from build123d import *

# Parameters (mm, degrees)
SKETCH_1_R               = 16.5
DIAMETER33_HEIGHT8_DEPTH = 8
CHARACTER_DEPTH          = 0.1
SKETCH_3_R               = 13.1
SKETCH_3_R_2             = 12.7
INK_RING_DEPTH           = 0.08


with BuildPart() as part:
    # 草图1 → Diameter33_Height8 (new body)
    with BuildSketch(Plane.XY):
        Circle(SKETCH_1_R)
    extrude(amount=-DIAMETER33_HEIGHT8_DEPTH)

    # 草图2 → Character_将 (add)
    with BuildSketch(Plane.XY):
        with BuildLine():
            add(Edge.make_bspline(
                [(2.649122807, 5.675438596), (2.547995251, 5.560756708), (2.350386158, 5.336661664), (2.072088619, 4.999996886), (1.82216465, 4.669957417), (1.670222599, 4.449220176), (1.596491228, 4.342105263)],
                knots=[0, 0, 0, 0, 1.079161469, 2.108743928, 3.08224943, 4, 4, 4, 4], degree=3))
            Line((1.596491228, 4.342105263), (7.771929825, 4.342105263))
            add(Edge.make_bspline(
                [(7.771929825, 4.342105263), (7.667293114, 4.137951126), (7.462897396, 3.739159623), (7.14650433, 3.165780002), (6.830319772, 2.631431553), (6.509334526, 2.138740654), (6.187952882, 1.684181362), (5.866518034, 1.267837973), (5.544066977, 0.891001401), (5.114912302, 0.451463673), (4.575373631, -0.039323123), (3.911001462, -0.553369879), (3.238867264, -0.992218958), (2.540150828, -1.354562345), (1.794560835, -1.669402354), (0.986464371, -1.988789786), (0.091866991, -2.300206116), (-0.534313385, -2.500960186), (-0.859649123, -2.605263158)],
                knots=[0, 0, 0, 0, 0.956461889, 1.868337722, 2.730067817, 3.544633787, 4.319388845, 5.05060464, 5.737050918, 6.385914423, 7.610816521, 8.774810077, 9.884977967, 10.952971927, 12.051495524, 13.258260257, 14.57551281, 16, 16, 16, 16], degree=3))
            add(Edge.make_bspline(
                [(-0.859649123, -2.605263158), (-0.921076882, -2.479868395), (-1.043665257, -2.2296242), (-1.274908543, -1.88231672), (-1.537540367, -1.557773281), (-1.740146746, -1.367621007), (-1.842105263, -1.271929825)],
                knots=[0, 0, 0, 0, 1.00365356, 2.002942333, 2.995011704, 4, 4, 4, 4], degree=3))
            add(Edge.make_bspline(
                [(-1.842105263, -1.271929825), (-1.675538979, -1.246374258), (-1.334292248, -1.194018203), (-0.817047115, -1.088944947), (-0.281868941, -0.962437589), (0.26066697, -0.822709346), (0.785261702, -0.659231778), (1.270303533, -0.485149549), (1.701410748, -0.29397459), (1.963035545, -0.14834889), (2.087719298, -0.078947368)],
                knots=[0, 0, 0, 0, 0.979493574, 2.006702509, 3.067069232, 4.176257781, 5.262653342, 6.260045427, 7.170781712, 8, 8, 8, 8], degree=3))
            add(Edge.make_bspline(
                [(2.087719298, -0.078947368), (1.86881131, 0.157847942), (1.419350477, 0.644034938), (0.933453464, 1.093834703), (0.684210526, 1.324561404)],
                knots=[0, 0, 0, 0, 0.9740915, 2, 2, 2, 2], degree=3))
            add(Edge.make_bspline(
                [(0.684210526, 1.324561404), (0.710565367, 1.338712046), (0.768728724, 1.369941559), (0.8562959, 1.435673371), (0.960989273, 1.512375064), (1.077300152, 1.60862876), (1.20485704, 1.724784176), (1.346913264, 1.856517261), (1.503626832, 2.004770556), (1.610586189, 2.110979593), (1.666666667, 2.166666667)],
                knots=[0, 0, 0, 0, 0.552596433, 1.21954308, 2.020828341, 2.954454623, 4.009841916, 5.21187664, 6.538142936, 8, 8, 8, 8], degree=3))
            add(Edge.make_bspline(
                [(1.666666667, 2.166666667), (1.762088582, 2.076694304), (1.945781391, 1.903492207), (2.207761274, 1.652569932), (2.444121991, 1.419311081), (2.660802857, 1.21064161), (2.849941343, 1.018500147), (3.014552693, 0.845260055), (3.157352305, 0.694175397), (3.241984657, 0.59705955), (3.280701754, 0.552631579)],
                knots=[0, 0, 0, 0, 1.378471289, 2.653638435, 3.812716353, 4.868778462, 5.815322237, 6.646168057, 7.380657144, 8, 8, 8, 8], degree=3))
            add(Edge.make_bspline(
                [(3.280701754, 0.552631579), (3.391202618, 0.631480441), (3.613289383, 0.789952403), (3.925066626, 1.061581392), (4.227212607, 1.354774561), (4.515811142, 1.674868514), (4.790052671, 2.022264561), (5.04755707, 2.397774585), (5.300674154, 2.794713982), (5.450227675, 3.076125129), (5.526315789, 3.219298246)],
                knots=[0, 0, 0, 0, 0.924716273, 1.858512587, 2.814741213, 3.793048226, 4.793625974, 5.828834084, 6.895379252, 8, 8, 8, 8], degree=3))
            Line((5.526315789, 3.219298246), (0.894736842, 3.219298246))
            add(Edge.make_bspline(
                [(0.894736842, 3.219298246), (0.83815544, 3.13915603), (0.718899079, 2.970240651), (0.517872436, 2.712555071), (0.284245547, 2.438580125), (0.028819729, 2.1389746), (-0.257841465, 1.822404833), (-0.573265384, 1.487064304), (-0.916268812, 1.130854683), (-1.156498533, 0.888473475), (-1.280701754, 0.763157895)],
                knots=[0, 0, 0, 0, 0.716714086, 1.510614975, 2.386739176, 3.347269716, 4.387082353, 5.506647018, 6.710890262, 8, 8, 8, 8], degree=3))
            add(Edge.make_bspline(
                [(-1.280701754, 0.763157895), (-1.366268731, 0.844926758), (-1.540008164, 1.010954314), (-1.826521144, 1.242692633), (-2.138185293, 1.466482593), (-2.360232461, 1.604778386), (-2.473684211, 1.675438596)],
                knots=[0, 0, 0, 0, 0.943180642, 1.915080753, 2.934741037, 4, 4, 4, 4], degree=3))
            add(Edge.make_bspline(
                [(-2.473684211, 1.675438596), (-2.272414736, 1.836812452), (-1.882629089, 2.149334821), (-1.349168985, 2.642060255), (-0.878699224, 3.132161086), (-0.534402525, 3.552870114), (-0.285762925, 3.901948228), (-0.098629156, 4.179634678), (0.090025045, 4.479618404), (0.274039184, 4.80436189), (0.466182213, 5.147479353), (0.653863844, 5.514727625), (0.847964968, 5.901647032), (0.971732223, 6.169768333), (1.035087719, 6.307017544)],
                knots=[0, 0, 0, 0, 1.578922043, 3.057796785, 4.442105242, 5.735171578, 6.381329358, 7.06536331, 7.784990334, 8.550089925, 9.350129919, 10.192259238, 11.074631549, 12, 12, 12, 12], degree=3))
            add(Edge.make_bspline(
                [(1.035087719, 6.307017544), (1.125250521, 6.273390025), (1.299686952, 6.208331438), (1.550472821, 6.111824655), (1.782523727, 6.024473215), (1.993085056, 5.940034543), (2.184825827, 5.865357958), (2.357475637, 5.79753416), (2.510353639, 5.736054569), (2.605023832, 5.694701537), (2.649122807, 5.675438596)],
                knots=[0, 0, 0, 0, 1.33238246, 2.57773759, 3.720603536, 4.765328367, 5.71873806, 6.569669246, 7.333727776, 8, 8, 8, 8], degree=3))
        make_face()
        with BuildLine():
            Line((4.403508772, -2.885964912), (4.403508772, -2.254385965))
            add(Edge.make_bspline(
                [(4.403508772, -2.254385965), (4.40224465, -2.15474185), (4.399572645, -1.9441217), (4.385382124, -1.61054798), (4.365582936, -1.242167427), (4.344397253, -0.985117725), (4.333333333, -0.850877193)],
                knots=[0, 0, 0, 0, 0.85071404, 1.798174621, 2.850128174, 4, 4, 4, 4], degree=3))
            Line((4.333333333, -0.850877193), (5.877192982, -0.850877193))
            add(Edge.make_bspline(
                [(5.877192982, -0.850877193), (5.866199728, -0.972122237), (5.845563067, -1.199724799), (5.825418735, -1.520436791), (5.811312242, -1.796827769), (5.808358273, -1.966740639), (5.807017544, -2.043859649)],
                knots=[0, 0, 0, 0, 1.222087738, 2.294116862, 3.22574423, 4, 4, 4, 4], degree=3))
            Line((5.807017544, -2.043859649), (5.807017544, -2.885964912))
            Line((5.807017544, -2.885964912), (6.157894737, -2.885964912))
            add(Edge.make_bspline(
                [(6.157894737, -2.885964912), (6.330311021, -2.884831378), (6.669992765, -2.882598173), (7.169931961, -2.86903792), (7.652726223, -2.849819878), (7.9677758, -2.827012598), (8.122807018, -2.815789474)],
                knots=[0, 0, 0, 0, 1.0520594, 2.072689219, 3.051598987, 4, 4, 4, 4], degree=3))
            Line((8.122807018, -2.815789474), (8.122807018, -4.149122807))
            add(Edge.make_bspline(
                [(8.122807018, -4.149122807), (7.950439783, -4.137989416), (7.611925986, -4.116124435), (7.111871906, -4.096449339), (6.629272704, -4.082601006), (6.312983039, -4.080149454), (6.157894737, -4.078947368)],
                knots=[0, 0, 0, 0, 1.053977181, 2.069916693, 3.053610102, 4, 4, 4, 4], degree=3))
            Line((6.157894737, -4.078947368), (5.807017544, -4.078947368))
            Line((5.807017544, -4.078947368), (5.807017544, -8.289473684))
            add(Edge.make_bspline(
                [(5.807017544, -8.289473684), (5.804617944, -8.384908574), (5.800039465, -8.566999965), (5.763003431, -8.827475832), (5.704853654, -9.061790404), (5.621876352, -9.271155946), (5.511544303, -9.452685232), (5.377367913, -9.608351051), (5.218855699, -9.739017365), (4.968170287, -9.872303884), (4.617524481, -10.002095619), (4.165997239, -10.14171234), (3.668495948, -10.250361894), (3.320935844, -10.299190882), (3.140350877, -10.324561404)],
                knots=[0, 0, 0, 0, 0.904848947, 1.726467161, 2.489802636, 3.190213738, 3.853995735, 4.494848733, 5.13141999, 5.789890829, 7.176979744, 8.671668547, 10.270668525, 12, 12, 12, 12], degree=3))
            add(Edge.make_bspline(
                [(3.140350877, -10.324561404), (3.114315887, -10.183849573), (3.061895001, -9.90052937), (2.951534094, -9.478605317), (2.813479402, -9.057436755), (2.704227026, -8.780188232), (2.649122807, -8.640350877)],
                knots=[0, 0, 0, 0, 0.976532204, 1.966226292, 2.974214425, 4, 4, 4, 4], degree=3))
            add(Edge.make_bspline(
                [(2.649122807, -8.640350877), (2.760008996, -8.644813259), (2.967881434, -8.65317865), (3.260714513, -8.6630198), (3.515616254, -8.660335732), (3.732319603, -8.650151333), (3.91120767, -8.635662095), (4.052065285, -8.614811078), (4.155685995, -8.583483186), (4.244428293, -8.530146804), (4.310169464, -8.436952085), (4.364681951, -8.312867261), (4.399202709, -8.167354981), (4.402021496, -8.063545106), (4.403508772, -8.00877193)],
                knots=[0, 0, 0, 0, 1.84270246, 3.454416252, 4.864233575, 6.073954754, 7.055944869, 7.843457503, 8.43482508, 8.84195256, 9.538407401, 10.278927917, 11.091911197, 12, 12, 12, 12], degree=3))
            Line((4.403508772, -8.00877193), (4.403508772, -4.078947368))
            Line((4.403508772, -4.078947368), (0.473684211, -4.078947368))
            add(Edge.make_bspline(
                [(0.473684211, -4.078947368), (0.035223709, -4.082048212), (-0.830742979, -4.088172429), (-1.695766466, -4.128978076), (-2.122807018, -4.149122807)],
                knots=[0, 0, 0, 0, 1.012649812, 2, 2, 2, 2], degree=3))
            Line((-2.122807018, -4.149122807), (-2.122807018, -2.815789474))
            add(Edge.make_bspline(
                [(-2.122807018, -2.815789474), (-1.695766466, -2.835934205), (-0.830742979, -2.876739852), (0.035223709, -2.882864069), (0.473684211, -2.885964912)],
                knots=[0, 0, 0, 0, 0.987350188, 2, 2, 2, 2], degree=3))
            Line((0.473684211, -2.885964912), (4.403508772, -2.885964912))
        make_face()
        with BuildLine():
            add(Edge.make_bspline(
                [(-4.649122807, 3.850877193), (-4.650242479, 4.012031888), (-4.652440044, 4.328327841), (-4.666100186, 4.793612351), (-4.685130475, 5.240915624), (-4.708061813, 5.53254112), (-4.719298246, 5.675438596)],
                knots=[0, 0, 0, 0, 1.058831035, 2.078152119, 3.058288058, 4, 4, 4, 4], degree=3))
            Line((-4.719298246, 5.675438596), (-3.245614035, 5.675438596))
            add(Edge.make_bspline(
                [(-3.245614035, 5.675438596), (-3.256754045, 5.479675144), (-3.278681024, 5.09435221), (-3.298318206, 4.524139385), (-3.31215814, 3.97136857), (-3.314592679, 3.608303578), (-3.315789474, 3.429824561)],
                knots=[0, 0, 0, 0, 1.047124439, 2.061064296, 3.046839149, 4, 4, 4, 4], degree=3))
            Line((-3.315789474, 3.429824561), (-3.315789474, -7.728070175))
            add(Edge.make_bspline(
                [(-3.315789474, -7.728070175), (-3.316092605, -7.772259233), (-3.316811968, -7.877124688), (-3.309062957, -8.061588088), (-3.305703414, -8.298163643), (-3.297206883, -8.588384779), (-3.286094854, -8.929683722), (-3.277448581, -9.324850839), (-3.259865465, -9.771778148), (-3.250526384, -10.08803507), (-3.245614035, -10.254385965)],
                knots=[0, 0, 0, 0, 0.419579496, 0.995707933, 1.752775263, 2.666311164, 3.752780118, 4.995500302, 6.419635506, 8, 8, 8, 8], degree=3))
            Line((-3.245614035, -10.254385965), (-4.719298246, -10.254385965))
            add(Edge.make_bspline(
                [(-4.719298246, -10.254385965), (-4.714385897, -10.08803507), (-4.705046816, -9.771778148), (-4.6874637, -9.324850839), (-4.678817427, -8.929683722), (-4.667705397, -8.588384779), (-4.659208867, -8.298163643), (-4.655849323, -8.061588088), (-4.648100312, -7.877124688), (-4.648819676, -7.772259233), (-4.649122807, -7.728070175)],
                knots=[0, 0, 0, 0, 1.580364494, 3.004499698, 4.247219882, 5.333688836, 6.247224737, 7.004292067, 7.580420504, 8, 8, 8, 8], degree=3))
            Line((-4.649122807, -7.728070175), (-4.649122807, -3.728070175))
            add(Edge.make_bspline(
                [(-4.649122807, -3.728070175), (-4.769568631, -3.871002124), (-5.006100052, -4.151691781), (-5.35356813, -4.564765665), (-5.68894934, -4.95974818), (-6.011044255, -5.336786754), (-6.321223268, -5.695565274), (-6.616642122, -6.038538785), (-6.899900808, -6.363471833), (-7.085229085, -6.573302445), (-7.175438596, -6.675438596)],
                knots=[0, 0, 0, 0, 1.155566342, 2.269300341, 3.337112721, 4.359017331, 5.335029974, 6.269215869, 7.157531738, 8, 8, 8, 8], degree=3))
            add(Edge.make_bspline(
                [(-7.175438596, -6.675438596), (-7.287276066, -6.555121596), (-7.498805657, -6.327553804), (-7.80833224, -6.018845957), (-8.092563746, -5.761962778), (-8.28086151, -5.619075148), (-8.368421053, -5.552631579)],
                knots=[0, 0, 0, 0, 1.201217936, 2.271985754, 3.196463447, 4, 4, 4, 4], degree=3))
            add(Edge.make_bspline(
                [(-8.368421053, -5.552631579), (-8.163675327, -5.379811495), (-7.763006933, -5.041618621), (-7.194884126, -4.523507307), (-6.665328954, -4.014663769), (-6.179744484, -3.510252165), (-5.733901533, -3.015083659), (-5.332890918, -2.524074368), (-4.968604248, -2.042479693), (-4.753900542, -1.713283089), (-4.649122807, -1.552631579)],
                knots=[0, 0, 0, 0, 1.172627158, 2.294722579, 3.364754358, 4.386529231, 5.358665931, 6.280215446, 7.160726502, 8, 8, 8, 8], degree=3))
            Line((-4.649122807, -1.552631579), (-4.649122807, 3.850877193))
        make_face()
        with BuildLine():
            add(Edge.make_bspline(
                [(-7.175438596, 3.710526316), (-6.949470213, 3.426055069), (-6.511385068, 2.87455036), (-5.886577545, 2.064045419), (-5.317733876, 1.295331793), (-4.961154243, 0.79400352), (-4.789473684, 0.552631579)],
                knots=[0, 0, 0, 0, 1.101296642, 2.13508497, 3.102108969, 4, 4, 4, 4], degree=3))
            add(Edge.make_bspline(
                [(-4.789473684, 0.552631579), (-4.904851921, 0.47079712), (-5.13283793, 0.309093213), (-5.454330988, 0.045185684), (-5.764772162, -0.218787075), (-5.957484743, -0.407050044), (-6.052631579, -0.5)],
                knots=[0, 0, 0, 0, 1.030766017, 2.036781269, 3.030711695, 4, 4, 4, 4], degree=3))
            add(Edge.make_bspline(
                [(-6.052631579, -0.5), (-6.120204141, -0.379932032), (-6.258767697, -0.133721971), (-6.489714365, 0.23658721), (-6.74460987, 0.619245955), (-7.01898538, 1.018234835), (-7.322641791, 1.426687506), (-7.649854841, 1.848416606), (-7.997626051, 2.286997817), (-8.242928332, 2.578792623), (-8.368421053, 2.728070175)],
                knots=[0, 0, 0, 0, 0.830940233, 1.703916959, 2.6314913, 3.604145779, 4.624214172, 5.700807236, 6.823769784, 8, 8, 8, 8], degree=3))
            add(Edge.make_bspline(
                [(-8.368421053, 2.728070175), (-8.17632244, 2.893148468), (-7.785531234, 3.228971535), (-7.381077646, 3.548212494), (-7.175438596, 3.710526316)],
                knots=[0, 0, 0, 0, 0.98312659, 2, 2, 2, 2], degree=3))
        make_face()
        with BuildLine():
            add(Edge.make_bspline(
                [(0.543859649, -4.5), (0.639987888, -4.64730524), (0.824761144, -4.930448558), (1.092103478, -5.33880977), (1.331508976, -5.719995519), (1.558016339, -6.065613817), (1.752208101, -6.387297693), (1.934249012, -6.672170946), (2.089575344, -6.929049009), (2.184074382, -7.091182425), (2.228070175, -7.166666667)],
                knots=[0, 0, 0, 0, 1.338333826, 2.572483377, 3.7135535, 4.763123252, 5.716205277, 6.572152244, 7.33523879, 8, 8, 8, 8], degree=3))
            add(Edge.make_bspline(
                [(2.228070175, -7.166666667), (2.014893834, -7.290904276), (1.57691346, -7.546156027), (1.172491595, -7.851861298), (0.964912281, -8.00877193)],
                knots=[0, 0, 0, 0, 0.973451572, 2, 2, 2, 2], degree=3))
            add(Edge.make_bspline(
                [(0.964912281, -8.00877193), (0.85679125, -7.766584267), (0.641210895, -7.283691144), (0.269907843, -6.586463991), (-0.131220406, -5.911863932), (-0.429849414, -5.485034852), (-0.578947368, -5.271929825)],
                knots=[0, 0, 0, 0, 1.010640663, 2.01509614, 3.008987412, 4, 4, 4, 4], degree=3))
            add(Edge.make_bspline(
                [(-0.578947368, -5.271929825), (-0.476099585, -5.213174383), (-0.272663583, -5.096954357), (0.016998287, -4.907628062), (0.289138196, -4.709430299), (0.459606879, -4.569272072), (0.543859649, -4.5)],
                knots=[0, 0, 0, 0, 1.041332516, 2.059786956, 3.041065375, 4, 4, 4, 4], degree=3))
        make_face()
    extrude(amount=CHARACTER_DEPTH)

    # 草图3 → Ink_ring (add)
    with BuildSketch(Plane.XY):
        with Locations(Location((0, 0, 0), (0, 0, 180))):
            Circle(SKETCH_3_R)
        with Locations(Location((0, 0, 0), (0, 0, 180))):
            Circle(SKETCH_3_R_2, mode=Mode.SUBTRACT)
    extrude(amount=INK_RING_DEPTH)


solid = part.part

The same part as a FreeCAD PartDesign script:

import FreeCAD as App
import Part
import Sketcher
Q = App.Units.Quantity

doc = App.newDocument("Part")
body = doc.addObject("PartDesign::Body", "Body")

# Sketch on XY plane
sketch1 = body.newObject("Sketcher::SketchObject", "Sketch")
sketch1.AttachmentSupport = (doc.getObject("XY_Plane"), [""])
sketch1.MapMode = "FlatFace"
sketch1.addGeometry(Part.Circle(App.Vector(0, 0, 0), App.Vector(0, 0, 1), 16), False)
sketch1.addConstraint(Sketcher.Constraint("Coincident", 0, 3, -1, 1))
sketch1.addConstraint(Sketcher.Constraint("Diameter", 0, Q("33 mm")))
pad1 = body.newObject("PartDesign::Pad", "Pad")
pad1.Profile = sketch1
pad1.Length = 8
pad1.Reversed = True

# Sketch on XY plane
sketch2 = body.newObject("Sketcher::SketchObject", "Sketch001")
sketch2.AttachmentSupport = (doc.getObject("XY_Plane"), [""])
sketch2.MapMode = "FlatFace"
sketch2.addGeometry(Part.BSplineCurve([App.Vector(2.649123, 5.675439, 0), App.Vector(2.547995, 5.560757, 0), App.Vector(2.350386, 5.336662, 0), App.Vector(2.072089, 4.999997, 0), App.Vector(1.822165, 4.669957, 0), App.Vector(1.670223, 4.44922, 0), App.Vector(1.596491, 4.342105, 0)], [4, 1, 1, 1, 4], [0, 1.079161469, 2.108743928, 3.08224943, 4], False, 3, [1, 1, 1, 1, 1, 1, 1], False), False)
sketch2.addGeometry(Part.BSplineCurve([App.Vector(1.035088, 6.307018, 0), App.Vector(1.125251, 6.27339, 0), App.Vector(1.299687, 6.208331, 0), App.Vector(1.550473, 6.111825, 0), App.Vector(1.782524, 6.024473, 0), App.Vector(1.993085, 5.940035, 0), App.Vector(2.184826, 5.865358, 0), App.Vector(2.357476, 5.797534, 0), App.Vector(2.510354, 5.736055, 0), App.Vector(2.605024, 5.694702, 0), App.Vector(2.649123, 5.675439, 0)], [4, 1, 1, 1, 1, 1, 1, 1, 4], [0, 1.33238246, 2.57773759, 3.720603536, 4.765328367, 5.71873806, 6.569669246, 7.333727776, 8], False, 3, [1, 1, 1, 1, 1, 1, 1, 1, 1, 1, 1], False), False)
sketch2.addGeometry(Part.BSplineCurve([App.Vector(-2.473684, 1.675439, 0), App.Vector(-2.272415, 1.836812, 0), App.Vector(-1.882629, 2.149335, 0), App.Vector(-1.349169, 2.64206, 0), App.Vector(-0.878699, 3.132161, 0), App.Vector(-0.534403, 3.55287, 0), App.Vector(-0.285763, 3.901948, 0), App.Vector(-0.098629, 4.179635, 0), App.Vector(0.090025, 4.479618, 0), App.Vector(0.274039, 4.804362, 0), App.Vector(0.466182, 5.147479, 0), App.Vector(0.653864, 5.514728, 0), App.Vector(0.847965, 5.901647, 0), App.Vector(0.971732, 6.169768, 0), App.Vector(1.035088, 6.307018, 0)], [4, 1, 1, 1, 1, 1, 1, 1, 1, 1, 1, 1, 4], [0, 1.578922043, 3.057796785, 4.442105242, 5.735171578, 6.381329358, 7.06536331, 7.784990334, 8.550089925, 9.350129919, 10.192259238, 11.074631549, 12], False, 3, [1, 1, 1, 1, 1, 1, 1, 1, 1, 1, 1, 1, 1, 1, 1], False), False)
sketch2.addGeometry(Part.BSplineCurve([App.Vector(-1.280702, 0.763158, 0), App.Vector(-1.366269, 0.844927, 0), App.Vector(-1.540008, 1.010954, 0), App.Vector(-1.826521, 1.242693, 0), App.Vector(-2.138185, 1.466483, 0), App.Vector(-2.360232, 1.604778, 0), App.Vector(-2.473684, 1.675439, 0)], [4, 1, 1, 1, 4], [0, 0.943180642, 1.915080753, 2.934741037, 4], False, 3, [1, 1, 1, 1, 1, 1, 1], False), False)
sketch2.addGeometry(Part.BSplineCurve([App.Vector(0.894737, 3.219298, 0), App.Vector(0.838155, 3.139156, 0), App.Vector(0.718899, 2.970241, 0), App.Vector(0.517872, 2.712555, 0), App.Vector(0.284246, 2.43858, 0), App.Vector(0.02882, 2.138975, 0), App.Vector(-0.257841, 1.822405, 0), App.Vector(-0.573265, 1.487064, 0), App.Vector(-0.916269, 1.130855, 0), App.Vector(-1.156499, 0.888473, 0), App.Vector(-1.280702, 0.763158, 0)], [4, 1, 1, 1, 1, 1, 1, 1, 4], [0, 0.716714086, 1.510614975, 2.386739176, 3.347269716, 4.387082353, 5.506647018, 6.710890262, 8], False, 3, [1, 1, 1, 1, 1, 1, 1, 1, 1, 1, 1], False), False)
sketch2.addGeometry(Part.LineSegment(App.Vector(0.894737, 3.219298, 0), App.Vector(5.526316, 3.219298, 0)), False)
sketch2.addGeometry(Part.BSplineCurve([App.Vector(3.280702, 0.552632, 0), App.Vector(3.391203, 0.63148, 0), App.Vector(3.613289, 0.789952, 0), App.Vector(3.925067, 1.061581, 0), App.Vector(4.227213, 1.354775, 0), App.Vector(4.515811, 1.674869, 0), App.Vector(4.790053, 2.022265, 0), App.Vector(5.047557, 2.397775, 0), App.Vector(5.300674, 2.794714, 0), App.Vector(5.450228, 3.076125, 0), App.Vector(5.526316, 3.219298, 0)], [4, 1, 1, 1, 1, 1, 1, 1, 4], [0, 0.924716273, 1.858512587, 2.814741213, 3.793048226, 4.793625974, 5.828834084, 6.895379252, 8], False, 3, [1, 1, 1, 1, 1, 1, 1, 1, 1, 1, 1], False), False)
sketch2.addGeometry(Part.BSplineCurve([App.Vector(1.666667, 2.166667, 0), App.Vector(1.762089, 2.076694, 0), App.Vector(1.945781, 1.903492, 0), App.Vector(2.207761, 1.65257, 0), App.Vector(2.444122, 1.419311, 0), App.Vector(2.660803, 1.210642, 0), App.Vector(2.849941, 1.0185, 0), App.Vector(3.014553, 0.84526, 0), App.Vector(3.157352, 0.694175, 0), App.Vector(3.241985, 0.59706, 0), App.Vector(3.280702, 0.552632, 0)], [4, 1, 1, 1, 1, 1, 1, 1, 4], [0, 1.378471289, 2.653638435, 3.812716353, 4.868778462, 5.815322237, 6.646168057, 7.380657144, 8], False, 3, [1, 1, 1, 1, 1, 1, 1, 1, 1, 1, 1], False), False)
sketch2.addGeometry(Part.BSplineCurve([App.Vector(0.684211, 1.324561, 0), App.Vector(0.710565, 1.338712, 0), App.Vector(0.768729, 1.369942, 0), App.Vector(0.856296, 1.435673, 0), App.Vector(0.960989, 1.512375, 0), App.Vector(1.0773, 1.608629, 0), App.Vector(1.204857, 1.724784, 0), App.Vector(1.346913, 1.856517, 0), App.Vector(1.503627, 2.004771, 0), App.Vector(1.610586, 2.11098, 0), App.Vector(1.666667, 2.166667, 0)], [4, 1, 1, 1, 1, 1, 1, 1, 4], [0, 0.552596433, 1.21954308, 2.020828341, 2.954454623, 4.009841916, 5.21187664, 6.538142936, 8], False, 3, [1, 1, 1, 1, 1, 1, 1, 1, 1, 1, 1], False), False)
sketch2.addGeometry(Part.BSplineCurve([App.Vector(2.087719, -0.078947, 0), App.Vector(1.868811, 0.157848, 0), App.Vector(1.41935, 0.644035, 0), App.Vector(0.933453, 1.093835, 0), App.Vector(0.684211, 1.324561, 0)], [4, 1, 4], [0, 0.9740915, 2], False, 3, [1, 1, 1, 1, 1], False), False)
sketch2.addGeometry(Part.BSplineCurve([App.Vector(-1.842105, -1.27193, 0), App.Vector(-1.675539, -1.246374, 0), App.Vector(-1.334292, -1.194018, 0), App.Vector(-0.817047, -1.088945, 0), App.Vector(-0.281869, -0.962438, 0), App.Vector(0.260667, -0.822709, 0), App.Vector(0.785262, -0.659232, 0), App.Vector(1.270304, -0.48515, 0), App.Vector(1.701411, -0.293975, 0), App.Vector(1.963036, -0.148349, 0), App.Vector(2.087719, -0.078947, 0)], [4, 1, 1, 1, 1, 1, 1, 1, 4], [0, 0.979493574, 2.006702509, 3.067069232, 4.176257781, 5.262653342, 6.260045427, 7.170781712, 8], False, 3, [1, 1, 1, 1, 1, 1, 1, 1, 1, 1, 1], False), False)
sketch2.addGeometry(Part.BSplineCurve([App.Vector(-0.859649, -2.605263, 0), App.Vector(-0.921077, -2.479868, 0), App.Vector(-1.043665, -2.229624, 0), App.Vector(-1.274909, -1.882317, 0), App.Vector(-1.53754, -1.557773, 0), App.Vector(-1.740147, -1.367621, 0), App.Vector(-1.842105, -1.27193, 0)], [4, 1, 1, 1, 4], [0, 1.00365356, 2.002942333, 2.995011704, 4], False, 3, [1, 1, 1, 1, 1, 1, 1], False), False)
sketch2.addGeometry(Part.BSplineCurve([App.Vector(7.77193, 4.342105, 0), App.Vector(7.667293, 4.137951, 0), App.Vector(7.462897, 3.73916, 0), App.Vector(7.146504, 3.16578, 0), App.Vector(6.83032, 2.631432, 0), App.Vector(6.509335, 2.138741, 0), App.Vector(6.187953, 1.684181, 0), App.Vector(5.866518, 1.267838, 0), App.Vector(5.544067, 0.891001, 0), App.Vector(5.114912, 0.451464, 0), App.Vector(4.575374, -0.039323, 0), App.Vector(3.911001, -0.55337, 0), App.Vector(3.238867, -0.992219, 0), App.Vector(2.540151, -1.354562, 0), App.Vector(1.794561, -1.669402, 0), App.Vector(0.986464, -1.98879, 0), App.Vector(0.091867, -2.300206, 0), App.Vector(-0.534313, -2.50096, 0), App.Vector(-0.859649, -2.605263, 0)], [4, 1, 1, 1, 1, 1, 1, 1, 1, 1, 1, 1, 1, 1, 1, 1, 4], [0, 0.956461889, 1.868337722, 2.730067817, 3.544633787, 4.319388845, 5.05060464, 5.737050918, 6.385914423, 7.610816521, 8.774810077, 9.884977967, 10.952971927, 12.051495524, 13.258260257, 14.57551281, 16], False, 3, [1, 1, 1, 1, 1, 1, 1, 1, 1, 1, 1, 1, 1, 1, 1, 1, 1, 1, 1], False), False)
sketch2.addGeometry(Part.LineSegment(App.Vector(7.77193, 4.342105, 0), App.Vector(1.596491, 4.342105, 0)), False)
sketch2.addGeometry(Part.LineSegment(App.Vector(4.403509, -2.254386, 0), App.Vector(4.403509, -2.885965, 0)), False)
sketch2.addGeometry(Part.LineSegment(App.Vector(4.403509, -2.885965, 0), App.Vector(0.473684, -2.885965, 0)), False)
sketch2.addGeometry(Part.BSplineCurve([App.Vector(-2.122807, -2.815789, 0), App.Vector(-1.695766, -2.835934, 0), App.Vector(-0.830743, -2.87674, 0), App.Vector(0.035224, -2.882864, 0), App.Vector(0.473684, -2.885965, 0)], [4, 1, 4], [0, 0.987350188, 2], False, 3, [1, 1, 1, 1, 1], False), False)
sketch2.addGeometry(Part.LineSegment(App.Vector(-2.122807, -2.815789, 0), App.Vector(-2.122807, -4.149123, 0)), False)
sketch2.addGeometry(Part.BSplineCurve([App.Vector(0.473684, -4.078947, 0), App.Vector(0.035224, -4.082048, 0), App.Vector(-0.830743, -4.088172, 0), App.Vector(-1.695766, -4.128978, 0), App.Vector(-2.122807, -4.149123, 0)], [4, 1, 4], [0, 1.012649812, 2], False, 3, [1, 1, 1, 1, 1], False), False)
sketch2.addGeometry(Part.LineSegment(App.Vector(0.473684, -4.078947, 0), App.Vector(4.403509, -4.078947, 0)), False)
sketch2.addGeometry(Part.LineSegment(App.Vector(4.403509, -4.078947, 0), App.Vector(4.403509, -8.008772, 0)), False)
sketch2.addGeometry(Part.BSplineCurve([App.Vector(2.649123, -8.640351, 0), App.Vector(2.760009, -8.644813, 0), App.Vector(2.967881, -8.653179, 0), App.Vector(3.260715, -8.66302, 0), App.Vector(3.515616, -8.660336, 0), App.Vector(3.73232, -8.650151, 0), App.Vector(3.911208, -8.635662, 0), App.Vector(4.052065, -8.614811, 0), App.Vector(4.155686, -8.583483, 0), App.Vector(4.244428, -8.530147, 0), App.Vector(4.310169, -8.436952, 0), App.Vector(4.364682, -8.312867, 0), App.Vector(4.399203, -8.167355, 0), App.Vector(4.402021, -8.063545, 0), App.Vector(4.403509, -8.008772, 0)], [4, 1, 1, 1, 1, 1, 1, 1, 1, 1, 1, 1, 4], [0, 1.84270246, 3.454416252, 4.864233575, 6.073954754, 7.055944869, 7.843457503, 8.43482508, 8.84195256, 9.538407401, 10.278927917, 11.091911197, 12], False, 3, [1, 1, 1, 1, 1, 1, 1, 1, 1, 1, 1, 1, 1, 1, 1], False), False)
sketch2.addGeometry(Part.BSplineCurve([App.Vector(3.140351, -10.324561, 0), App.Vector(3.114316, -10.18385, 0), App.Vector(3.061895, -9.900529, 0), App.Vector(2.951534, -9.478605, 0), App.Vector(2.813479, -9.057437, 0), App.Vector(2.704227, -8.780188, 0), App.Vector(2.649123, -8.640351, 0)], [4, 1, 1, 1, 4], [0, 0.976532204, 1.966226292, 2.974214425, 4], False, 3, [1, 1, 1, 1, 1, 1, 1], False), False)
sketch2.addGeometry(Part.BSplineCurve([App.Vector(5.807018, -8.289474, 0), App.Vector(5.804618, -8.384909, 0), App.Vector(5.800039, -8.567, 0), App.Vector(5.763003, -8.827476, 0), App.Vector(5.704854, -9.06179, 0), App.Vector(5.621876, -9.271156, 0), App.Vector(5.511544, -9.452685, 0), App.Vector(5.377368, -9.608351, 0), App.Vector(5.218856, -9.739017, 0), App.Vector(4.96817, -9.872304, 0), App.Vector(4.617524, -10.002096, 0), App.Vector(4.165997, -10.141712, 0), App.Vector(3.668496, -10.250362, 0), App.Vector(3.320936, -10.299191, 0), App.Vector(3.140351, -10.324561, 0)], [4, 1, 1, 1, 1, 1, 1, 1, 1, 1, 1, 1, 4], [0, 0.904848947, 1.726467161, 2.489802636, 3.190213738, 3.853995735, 4.494848733, 5.13141999, 5.789890829, 7.176979744, 8.671668547, 10.270668525, 12], False, 3, [1, 1, 1, 1, 1, 1, 1, 1, 1, 1, 1, 1, 1, 1, 1], False), False)
sketch2.addGeometry(Part.LineSegment(App.Vector(5.807018, -8.289474, 0), App.Vector(5.807018, -4.078947, 0)), False)
sketch2.addGeometry(Part.LineSegment(App.Vector(5.807018, -4.078947, 0), App.Vector(6.157895, -4.078947, 0)), False)
sketch2.addGeometry(Part.BSplineCurve([App.Vector(8.122807, -4.149123, 0), App.Vector(7.95044, -4.137989, 0), App.Vector(7.611926, -4.116124, 0), App.Vector(7.111872, -4.096449, 0), App.Vector(6.629273, -4.082601, 0), App.Vector(6.312983, -4.080149, 0), App.Vector(6.157895, -4.078947, 0)], [4, 1, 1, 1, 4], [0, 1.053977181, 2.069916693, 3.053610102, 4], False, 3, [1, 1, 1, 1, 1, 1, 1], False), False)
sketch2.addGeometry(Part.LineSegment(App.Vector(8.122807, -4.149123, 0), App.Vector(8.122807, -2.815789, 0)), False)
sketch2.addGeometry(Part.BSplineCurve([App.Vector(6.157895, -2.885965, 0), App.Vector(6.330311, -2.884831, 0), App.Vector(6.669993, -2.882598, 0), App.Vector(7.169932, -2.869038, 0), App.Vector(7.652726, -2.84982, 0), App.Vector(7.967776, -2.827013, 0), App.Vector(8.122807, -2.815789, 0)], [4, 1, 1, 1, 4], [0, 1.0520594, 2.072689219, 3.051598987, 4], False, 3, [1, 1, 1, 1, 1, 1, 1], False), False)
sketch2.addGeometry(Part.LineSegment(App.Vector(6.157895, -2.885965, 0), App.Vector(5.807018, -2.885965, 0)), False)
sketch2.addGeometry(Part.LineSegment(App.Vector(5.807018, -2.885965, 0), App.Vector(5.807018, -2.04386, 0)), False)
sketch2.addGeometry(Part.BSplineCurve([App.Vector(5.877193, -0.850877, 0), App.Vector(5.8662, -0.972122, 0), App.Vector(5.845563, -1.199725, 0), App.Vector(5.825419, -1.520437, 0), App.Vector(5.811312, -1.796828, 0), App.Vector(5.808358, -1.966741, 0), App.Vector(5.807018, -2.04386, 0)], [4, 1, 1, 1, 4], [0, 1.222087738, 2.294116862, 3.22574423, 4], False, 3, [1, 1, 1, 1, 1, 1, 1], False), False)
sketch2.addGeometry(Part.LineSegment(App.Vector(5.877193, -0.850877, 0), App.Vector(4.333333, -0.850877, 0)), False)
sketch2.addGeometry(Part.BSplineCurve([App.Vector(4.403509, -2.254386, 0), App.Vector(4.402245, -2.154742, 0), App.Vector(4.399573, -1.944122, 0), App.Vector(4.385382, -1.610548, 0), App.Vector(4.365583, -1.242167, 0), App.Vector(4.344397, -0.985118, 0), App.Vector(4.333333, -0.850877, 0)], [4, 1, 1, 1, 4], [0, 0.85071404, 1.798174621, 2.850128174, 4], False, 3, [1, 1, 1, 1, 1, 1, 1], False), False)
sketch2.addGeometry(Part.BSplineCurve([App.Vector(-4.649123, 3.850877, 0), App.Vector(-4.650242, 4.012032, 0), App.Vector(-4.65244, 4.328328, 0), App.Vector(-4.6661, 4.793612, 0), App.Vector(-4.68513, 5.240916, 0), App.Vector(-4.708062, 5.532541, 0), App.Vector(-4.719298, 5.675439, 0)], [4, 1, 1, 1, 4], [0, 1.058831035, 2.078152119, 3.058288058, 4], False, 3, [1, 1, 1, 1, 1, 1, 1], False), False)
sketch2.addGeometry(Part.LineSegment(App.Vector(-4.649123, 3.850877, 0), App.Vector(-4.649123, -1.552632, 0)), False)
sketch2.addGeometry(Part.BSplineCurve([App.Vector(-8.368421, -5.552632, 0), App.Vector(-8.163675, -5.379811, 0), App.Vector(-7.763007, -5.041619, 0), App.Vector(-7.194884, -4.523507, 0), App.Vector(-6.665329, -4.014664, 0), App.Vector(-6.179744, -3.510252, 0), App.Vector(-5.733902, -3.015084, 0), App.Vector(-5.332891, -2.524074, 0), App.Vector(-4.968604, -2.04248, 0), App.Vector(-4.753901, -1.713283, 0), App.Vector(-4.649123, -1.552632, 0)], [4, 1, 1, 1, 1, 1, 1, 1, 4], [0, 1.172627158, 2.294722579, 3.364754358, 4.386529231, 5.358665931, 6.280215446, 7.160726502, 8], False, 3, [1, 1, 1, 1, 1, 1, 1, 1, 1, 1, 1], False), False)
sketch2.addGeometry(Part.BSplineCurve([App.Vector(-7.175439, -6.675439, 0), App.Vector(-7.287276, -6.555122, 0), App.Vector(-7.498806, -6.327554, 0), App.Vector(-7.808332, -6.018846, 0), App.Vector(-8.092564, -5.761963, 0), App.Vector(-8.280862, -5.619075, 0), App.Vector(-8.368421, -5.552632, 0)], [4, 1, 1, 1, 4], [0, 1.201217936, 2.271985754, 3.196463447, 4], False, 3, [1, 1, 1, 1, 1, 1, 1], False), False)
sketch2.addGeometry(Part.BSplineCurve([App.Vector(-4.649123, -3.72807, 0), App.Vector(-4.769569, -3.871002, 0), App.Vector(-5.0061, -4.151692, 0), App.Vector(-5.353568, -4.564766, 0), App.Vector(-5.688949, -4.959748, 0), App.Vector(-6.011044, -5.336787, 0), App.Vector(-6.321223, -5.695565, 0), App.Vector(-6.616642, -6.038539, 0), App.Vector(-6.899901, -6.363472, 0), App.Vector(-7.085229, -6.573302, 0), App.Vector(-7.175439, -6.675439, 0)], [4, 1, 1, 1, 1, 1, 1, 1, 4], [0, 1.155566342, 2.269300341, 3.337112721, 4.359017331, 5.335029974, 6.269215869, 7.157531738, 8], False, 3, [1, 1, 1, 1, 1, 1, 1, 1, 1, 1, 1], False), False)
sketch2.addGeometry(Part.LineSegment(App.Vector(-4.649123, -3.72807, 0), App.Vector(-4.649123, -7.72807, 0)), False)
sketch2.addGeometry(Part.BSplineCurve([App.Vector(-4.719298, -10.254386, 0), App.Vector(-4.714386, -10.088035, 0), App.Vector(-4.705047, -9.771778, 0), App.Vector(-4.687464, -9.324851, 0), App.Vector(-4.678817, -8.929684, 0), App.Vector(-4.667705, -8.588385, 0), App.Vector(-4.659209, -8.298164, 0), App.Vector(-4.655849, -8.061588, 0), App.Vector(-4.6481, -7.877125, 0), App.Vector(-4.64882, -7.772259, 0), App.Vector(-4.649123, -7.72807, 0)], [4, 1, 1, 1, 1, 1, 1, 1, 4], [0, 1.580364494, 3.004499698, 4.247219882, 5.333688836, 6.247224737, 7.004292067, 7.580420504, 8], False, 3, [1, 1, 1, 1, 1, 1, 1, 1, 1, 1, 1], False), False)
sketch2.addGeometry(Part.LineSegment(App.Vector(-4.719298, -10.254386, 0), App.Vector(-3.245614, -10.254386, 0)), False)
sketch2.addGeometry(Part.BSplineCurve([App.Vector(-3.315789, -7.72807, 0), App.Vector(-3.316093, -7.772259, 0), App.Vector(-3.316812, -7.877125, 0), App.Vector(-3.309063, -8.061588, 0), App.Vector(-3.305703, -8.298164, 0), App.Vector(-3.297207, -8.588385, 0), App.Vector(-3.286095, -8.929684, 0), App.Vector(-3.277449, -9.324851, 0), App.Vector(-3.259865, -9.771778, 0), App.Vector(-3.250526, -10.088035, 0), App.Vector(-3.245614, -10.254386, 0)], [4, 1, 1, 1, 1, 1, 1, 1, 4], [0, 0.419579496, 0.995707933, 1.752775263, 2.666311164, 3.752780118, 4.995500302, 6.419635506, 8], False, 3, [1, 1, 1, 1, 1, 1, 1, 1, 1, 1, 1], False), False)
sketch2.addGeometry(Part.LineSegment(App.Vector(-3.315789, -7.72807, 0), App.Vector(-3.315789, 3.429825, 0)), False)
sketch2.addGeometry(Part.BSplineCurve([App.Vector(-3.245614, 5.675439, 0), App.Vector(-3.256754, 5.479675, 0), App.Vector(-3.278681, 5.094352, 0), App.Vector(-3.298318, 4.524139, 0), App.Vector(-3.312158, 3.971369, 0), App.Vector(-3.314593, 3.608304, 0), App.Vector(-3.315789, 3.429825, 0)], [4, 1, 1, 1, 4], [0, 1.047124439, 2.061064296, 3.046839149, 4], False, 3, [1, 1, 1, 1, 1, 1, 1], False), False)
sketch2.addGeometry(Part.LineSegment(App.Vector(-3.245614, 5.675439, 0), App.Vector(-4.719298, 5.675439, 0)), False)
sketch2.addGeometry(Part.BSplineCurve([App.Vector(-7.175439, 3.710526, 0), App.Vector(-6.94947, 3.426055, 0), App.Vector(-6.511385, 2.87455, 0), App.Vector(-5.886578, 2.064045, 0), App.Vector(-5.317734, 1.295332, 0), App.Vector(-4.961154, 0.794004, 0), App.Vector(-4.789474, 0.552632, 0)], [4, 1, 1, 1, 4], [0, 1.101296642, 2.13508497, 3.102108969, 4], False, 3, [1, 1, 1, 1, 1, 1, 1], False), False)
sketch2.addGeometry(Part.BSplineCurve([App.Vector(-8.368421, 2.72807, 0), App.Vector(-8.176322, 2.893148, 0), App.Vector(-7.785531, 3.228972, 0), App.Vector(-7.381078, 3.548212, 0), App.Vector(-7.175439, 3.710526, 0)], [4, 1, 4], [0, 0.98312659, 2], False, 3, [1, 1, 1, 1, 1], False), False)
sketch2.addGeometry(Part.BSplineCurve([App.Vector(-6.052632, -0.5, 0), App.Vector(-6.120204, -0.379932, 0), App.Vector(-6.258768, -0.133722, 0), App.Vector(-6.489714, 0.236587, 0), App.Vector(-6.74461, 0.619246, 0), App.Vector(-7.018985, 1.018235, 0), App.Vector(-7.322642, 1.426688, 0), App.Vector(-7.649855, 1.848417, 0), App.Vector(-7.997626, 2.286998, 0), App.Vector(-8.242928, 2.578793, 0), App.Vector(-8.368421, 2.72807, 0)], [4, 1, 1, 1, 1, 1, 1, 1, 4], [0, 0.830940233, 1.703916959, 2.6314913, 3.604145779, 4.624214172, 5.700807236, 6.823769784, 8], False, 3, [1, 1, 1, 1, 1, 1, 1, 1, 1, 1, 1], False), False)
sketch2.addGeometry(Part.BSplineCurve([App.Vector(-4.789474, 0.552632, 0), App.Vector(-4.904852, 0.470797, 0), App.Vector(-5.132838, 0.309093, 0), App.Vector(-5.454331, 0.045186, 0), App.Vector(-5.764772, -0.218787, 0), App.Vector(-5.957485, -0.40705, 0), App.Vector(-6.052632, -0.5, 0)], [4, 1, 1, 1, 4], [0, 1.030766017, 2.036781269, 3.030711695, 4], False, 3, [1, 1, 1, 1, 1, 1, 1], False), False)
sketch2.addGeometry(Part.BSplineCurve([App.Vector(0.54386, -4.5, 0), App.Vector(0.639988, -4.647305, 0), App.Vector(0.824761, -4.930449, 0), App.Vector(1.092103, -5.33881, 0), App.Vector(1.331509, -5.719996, 0), App.Vector(1.558016, -6.065614, 0), App.Vector(1.752208, -6.387298, 0), App.Vector(1.934249, -6.672171, 0), App.Vector(2.089575, -6.929049, 0), App.Vector(2.184074, -7.091182, 0), App.Vector(2.22807, -7.166667, 0)], [4, 1, 1, 1, 1, 1, 1, 1, 4], [0, 1.338333826, 2.572483377, 3.7135535, 4.763123252, 5.716205277, 6.572152244, 7.33523879, 8], False, 3, [1, 1, 1, 1, 1, 1, 1, 1, 1, 1, 1], False), False)
sketch2.addGeometry(Part.BSplineCurve([App.Vector(-0.578947, -5.27193, 0), App.Vector(-0.4761, -5.213174, 0), App.Vector(-0.272664, -5.096954, 0), App.Vector(0.016998, -4.907628, 0), App.Vector(0.289138, -4.70943, 0), App.Vector(0.459607, -4.569272, 0), App.Vector(0.54386, -4.5, 0)], [4, 1, 1, 1, 4], [0, 1.041332516, 2.059786956, 3.041065375, 4], False, 3, [1, 1, 1, 1, 1, 1, 1], False), False)
sketch2.addGeometry(Part.BSplineCurve([App.Vector(0.964912, -8.008772, 0), App.Vector(0.856791, -7.766584, 0), App.Vector(0.641211, -7.283691, 0), App.Vector(0.269908, -6.586464, 0), App.Vector(-0.13122, -5.911864, 0), App.Vector(-0.429849, -5.485035, 0), App.Vector(-0.578947, -5.27193, 0)], [4, 1, 1, 1, 4], [0, 1.010640663, 2.01509614, 3.008987412, 4], False, 3, [1, 1, 1, 1, 1, 1, 1], False), False)
sketch2.addGeometry(Part.BSplineCurve([App.Vector(2.22807, -7.166667, 0), App.Vector(2.014894, -7.290904, 0), App.Vector(1.576913, -7.546156, 0), App.Vector(1.172492, -7.851861, 0), App.Vector(0.964912, -8.008772, 0)], [4, 1, 4], [0, 0.973451572, 2], False, 3, [1, 1, 1, 1, 1], False), False)
sketch2.addConstraint(Sketcher.Constraint("Block", 0))
sketch2.addConstraint(Sketcher.Constraint("Block", 1))
sketch2.addConstraint(Sketcher.Constraint("Block", 2))
sketch2.addConstraint(Sketcher.Constraint("Block", 3))
sketch2.addConstraint(Sketcher.Constraint("Block", 4))
sketch2.addConstraint(Sketcher.Constraint("Block", 6))
sketch2.addConstraint(Sketcher.Constraint("Block", 7))
sketch2.addConstraint(Sketcher.Constraint("Block", 8))
sketch2.addConstraint(Sketcher.Constraint("Block", 9))
sketch2.addConstraint(Sketcher.Constraint("Block", 10))
sketch2.addConstraint(Sketcher.Constraint("Block", 11))
sketch2.addConstraint(Sketcher.Constraint("Block", 12))
sketch2.addConstraint(Sketcher.Constraint("Block", 16))
sketch2.addConstraint(Sketcher.Constraint("Block", 18))
sketch2.addConstraint(Sketcher.Constraint("Block", 21))
sketch2.addConstraint(Sketcher.Constraint("Block", 22))
sketch2.addConstraint(Sketcher.Constraint("Block", 23))
sketch2.addConstraint(Sketcher.Constraint("Block", 26))
sketch2.addConstraint(Sketcher.Constraint("Block", 28))
sketch2.addConstraint(Sketcher.Constraint("Block", 31))
sketch2.addConstraint(Sketcher.Constraint("Block", 33))
sketch2.addConstraint(Sketcher.Constraint("Block", 34))
sketch2.addConstraint(Sketcher.Constraint("Block", 36))
sketch2.addConstraint(Sketcher.Constraint("Block", 37))
sketch2.addConstraint(Sketcher.Constraint("Block", 38))
sketch2.addConstraint(Sketcher.Constraint("Block", 40))
sketch2.addConstraint(Sketcher.Constraint("Block", 42))
sketch2.addConstraint(Sketcher.Constraint("Block", 44))
sketch2.addConstraint(Sketcher.Constraint("Block", 46))
sketch2.addConstraint(Sketcher.Constraint("Block", 47))
sketch2.addConstraint(Sketcher.Constraint("Block", 48))
sketch2.addConstraint(Sketcher.Constraint("Block", 49))
sketch2.addConstraint(Sketcher.Constraint("Block", 50))
sketch2.addConstraint(Sketcher.Constraint("Block", 51))
sketch2.addConstraint(Sketcher.Constraint("Block", 52))
sketch2.addConstraint(Sketcher.Constraint("Block", 53))
sketch2.addConstraint(Sketcher.Constraint("Coincident", 4, 1, 5, 1))
sketch2.addConstraint(Sketcher.Constraint("Coincident", 5, 2, 6, 2))
sketch2.addConstraint(Sketcher.Constraint("Coincident", 12, 1, 13, 1))
sketch2.addConstraint(Sketcher.Constraint("Coincident", 13, 2, 0, 2))
sketch2.addConstraint(Sketcher.Constraint("Coincident", 14, 2, 15, 1))
sketch2.addConstraint(Sketcher.Constraint("Coincident", 15, 2, 16, 2))
sketch2.addConstraint(Sketcher.Constraint("Coincident", 16, 1, 17, 1))
sketch2.addConstraint(Sketcher.Constraint("Coincident", 17, 2, 18, 2))
sketch2.addConstraint(Sketcher.Constraint("Coincident", 18, 1, 19, 1))
sketch2.addConstraint(Sketcher.Constraint("Coincident", 19, 2, 20, 1))
sketch2.addConstraint(Sketcher.Constraint("Coincident", 20, 2, 21, 2))
sketch2.addConstraint(Sketcher.Constraint("Coincident", 23, 1, 24, 1))
sketch2.addConstraint(Sketcher.Constraint("Coincident", 24, 2, 25, 1))
sketch2.addConstraint(Sketcher.Constraint("Coincident", 25, 2, 26, 2))
sketch2.addConstraint(Sketcher.Constraint("Coincident", 26, 1, 27, 1))
sketch2.addConstraint(Sketcher.Constraint("Coincident", 27, 2, 28, 2))
sketch2.addConstraint(Sketcher.Constraint("Coincident", 28, 1, 29, 1))
sketch2.addConstraint(Sketcher.Constraint("Coincident", 29, 2, 30, 1))
sketch2.addConstraint(Sketcher.Constraint("Coincident", 30, 2, 31, 2))
sketch2.addConstraint(Sketcher.Constraint("Coincident", 31, 1, 32, 1))
sketch2.addConstraint(Sketcher.Constraint("Coincident", 32, 2, 33, 2))
sketch2.addConstraint(Sketcher.Constraint("Coincident", 33, 1, 14, 1))
sketch2.addConstraint(Sketcher.Constraint("Coincident", 34, 1, 35, 1))
sketch2.addConstraint(Sketcher.Constraint("Coincident", 35, 2, 36, 2))
sketch2.addConstraint(Sketcher.Constraint("Coincident", 38, 1, 39, 1))
sketch2.addConstraint(Sketcher.Constraint("Coincident", 39, 2, 40, 2))
sketch2.addConstraint(Sketcher.Constraint("Coincident", 40, 1, 41, 1))
sketch2.addConstraint(Sketcher.Constraint("Coincident", 41, 2, 42, 2))
sketch2.addConstraint(Sketcher.Constraint("Coincident", 42, 1, 43, 1))
sketch2.addConstraint(Sketcher.Constraint("Coincident", 43, 2, 44, 2))
sketch2.addConstraint(Sketcher.Constraint("Coincident", 44, 1, 45, 1))
sketch2.addConstraint(Sketcher.Constraint("Coincident", 45, 2, 34, 2))
sketch2.addConstraint(Sketcher.Constraint("Vertical", 14))
sketch2.addConstraint(Sketcher.Constraint("Horizontal", 15))
sketch2.addConstraint(Sketcher.Constraint("Horizontal", 19))
sketch2.addConstraint(Sketcher.Constraint("Vertical", 20))
sketch2.addConstraint(Sketcher.Constraint("Vertical", 24))
sketch2.addConstraint(Sketcher.Constraint("Horizontal", 25))
sketch2.addConstraint(Sketcher.Constraint("Horizontal", 29))
sketch2.addConstraint(Sketcher.Constraint("Vertical", 30))
pad2 = body.newObject("PartDesign::Pad", "Pad001")
pad2.Profile = sketch2
pad2.Length = 0.1

# Sketch on XY plane
sketch3 = body.newObject("Sketcher::SketchObject", "Sketch002")
sketch3.AttachmentSupport = (doc.getObject("XY_Plane"), [""])
sketch3.MapMode = "FlatFace"
sketch3.addGeometry(Part.Circle(App.Vector(0, 0, 0), App.Vector(0, 0, 1), 13), False)
sketch3.addGeometry(Part.Circle(App.Vector(0, 0, 0), App.Vector(0, 0, 1), 13), False)
sketch3.addConstraint(Sketcher.Constraint("Coincident", 0, 3, -1, 1))
sketch3.addConstraint(Sketcher.Constraint("Coincident", 1, 3, -1, 1))
sketch3.addConstraint(Sketcher.Constraint("Diameter", 0, Q("26.2 mm")))
sketch3.addConstraint(Sketcher.Constraint("Diameter", 1, Q("25.4 mm")))
pad3 = body.newObject("PartDesign::Pad", "Pad002")
pad3.Profile = sketch3
pad3.Length = 0.08

doc.recompute()
